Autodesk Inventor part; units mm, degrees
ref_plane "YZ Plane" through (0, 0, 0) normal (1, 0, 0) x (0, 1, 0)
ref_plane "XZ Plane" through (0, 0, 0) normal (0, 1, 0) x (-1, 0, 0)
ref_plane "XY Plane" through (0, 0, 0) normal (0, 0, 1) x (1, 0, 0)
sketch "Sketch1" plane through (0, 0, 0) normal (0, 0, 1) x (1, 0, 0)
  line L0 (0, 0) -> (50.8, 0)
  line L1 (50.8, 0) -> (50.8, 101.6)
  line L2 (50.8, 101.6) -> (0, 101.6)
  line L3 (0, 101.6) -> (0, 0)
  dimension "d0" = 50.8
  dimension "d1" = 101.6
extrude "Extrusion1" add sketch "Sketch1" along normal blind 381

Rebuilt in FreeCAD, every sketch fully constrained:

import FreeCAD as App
import Part
import Sketcher

V = App.Vector
Q = App.Units.Quantity


def add_polygon(sketch, points):
    """Adds a closed chain of lines whose ends are joined by coincident constraints."""
    first, n = sketch.GeometryCount, len(points)
    for a, b in zip(points, points[1:] + points[:1]):
        sketch.addGeometry(Part.LineSegment(App.Vector(*a, 0), App.Vector(*b, 0)), False)
    for i in range(n):
        sketch.addConstraint(Sketcher.Constraint("Coincident", first + i, 2, first + (i + 1) % n, 1))

doc = App.newDocument("Part")
params = doc.addObject("Spreadsheet::Sheet", "Params")
for row, (alias, value) in enumerate([
    ("sketch1_width", "2 in"),
    ("sketch1_height", "4 in"),
    ("pad1_length", "15 in"),
], start=1):
    params.set(f"A{row}", alias)
    params.set(f"B{row}", "=" + value)
    params.setAlias(f"B{row}", alias)

body = doc.addObject("PartDesign::Body", "Body")

sketch1 = body.newObject("Sketcher::SketchObject", "Sketch")
sketch1.AttachmentSupport = (doc.getObject("XY_Plane"), [""])
sketch1.MapMode = "FlatFace"
add_polygon(sketch1, [(0, 102), (0, 0), (51, 0), (51, 102)])
sketch1.addConstraint(Sketcher.Constraint("Vertical", 0))
sketch1.addConstraint(Sketcher.Constraint("Horizontal", 1))
sketch1.addConstraint(Sketcher.Constraint("Vertical", 2))
sketch1.addConstraint(Sketcher.Constraint("Horizontal", 3))
sketch1.addConstraint(Sketcher.Constraint("Coincident", 0, 2, -1, 1))
sketch1.addConstraint(Sketcher.Constraint("DistanceX", 1, 1, 1, 2, Q("2 in")))
sketch1.addConstraint(Sketcher.Constraint("DistanceY", 0, 2, 0, 1, Q("4 in")))
sketch1.setExpression("Constraints[9]", "Params.sketch1_width")
sketch1.setExpression("Constraints[10]", "Params.sketch1_height")
pad1 = body.newObject("PartDesign::Pad", "Pad")
pad1.Profile = sketch1
pad1.setExpression("Length", "Params.pad1_length")

doc.recompute()
